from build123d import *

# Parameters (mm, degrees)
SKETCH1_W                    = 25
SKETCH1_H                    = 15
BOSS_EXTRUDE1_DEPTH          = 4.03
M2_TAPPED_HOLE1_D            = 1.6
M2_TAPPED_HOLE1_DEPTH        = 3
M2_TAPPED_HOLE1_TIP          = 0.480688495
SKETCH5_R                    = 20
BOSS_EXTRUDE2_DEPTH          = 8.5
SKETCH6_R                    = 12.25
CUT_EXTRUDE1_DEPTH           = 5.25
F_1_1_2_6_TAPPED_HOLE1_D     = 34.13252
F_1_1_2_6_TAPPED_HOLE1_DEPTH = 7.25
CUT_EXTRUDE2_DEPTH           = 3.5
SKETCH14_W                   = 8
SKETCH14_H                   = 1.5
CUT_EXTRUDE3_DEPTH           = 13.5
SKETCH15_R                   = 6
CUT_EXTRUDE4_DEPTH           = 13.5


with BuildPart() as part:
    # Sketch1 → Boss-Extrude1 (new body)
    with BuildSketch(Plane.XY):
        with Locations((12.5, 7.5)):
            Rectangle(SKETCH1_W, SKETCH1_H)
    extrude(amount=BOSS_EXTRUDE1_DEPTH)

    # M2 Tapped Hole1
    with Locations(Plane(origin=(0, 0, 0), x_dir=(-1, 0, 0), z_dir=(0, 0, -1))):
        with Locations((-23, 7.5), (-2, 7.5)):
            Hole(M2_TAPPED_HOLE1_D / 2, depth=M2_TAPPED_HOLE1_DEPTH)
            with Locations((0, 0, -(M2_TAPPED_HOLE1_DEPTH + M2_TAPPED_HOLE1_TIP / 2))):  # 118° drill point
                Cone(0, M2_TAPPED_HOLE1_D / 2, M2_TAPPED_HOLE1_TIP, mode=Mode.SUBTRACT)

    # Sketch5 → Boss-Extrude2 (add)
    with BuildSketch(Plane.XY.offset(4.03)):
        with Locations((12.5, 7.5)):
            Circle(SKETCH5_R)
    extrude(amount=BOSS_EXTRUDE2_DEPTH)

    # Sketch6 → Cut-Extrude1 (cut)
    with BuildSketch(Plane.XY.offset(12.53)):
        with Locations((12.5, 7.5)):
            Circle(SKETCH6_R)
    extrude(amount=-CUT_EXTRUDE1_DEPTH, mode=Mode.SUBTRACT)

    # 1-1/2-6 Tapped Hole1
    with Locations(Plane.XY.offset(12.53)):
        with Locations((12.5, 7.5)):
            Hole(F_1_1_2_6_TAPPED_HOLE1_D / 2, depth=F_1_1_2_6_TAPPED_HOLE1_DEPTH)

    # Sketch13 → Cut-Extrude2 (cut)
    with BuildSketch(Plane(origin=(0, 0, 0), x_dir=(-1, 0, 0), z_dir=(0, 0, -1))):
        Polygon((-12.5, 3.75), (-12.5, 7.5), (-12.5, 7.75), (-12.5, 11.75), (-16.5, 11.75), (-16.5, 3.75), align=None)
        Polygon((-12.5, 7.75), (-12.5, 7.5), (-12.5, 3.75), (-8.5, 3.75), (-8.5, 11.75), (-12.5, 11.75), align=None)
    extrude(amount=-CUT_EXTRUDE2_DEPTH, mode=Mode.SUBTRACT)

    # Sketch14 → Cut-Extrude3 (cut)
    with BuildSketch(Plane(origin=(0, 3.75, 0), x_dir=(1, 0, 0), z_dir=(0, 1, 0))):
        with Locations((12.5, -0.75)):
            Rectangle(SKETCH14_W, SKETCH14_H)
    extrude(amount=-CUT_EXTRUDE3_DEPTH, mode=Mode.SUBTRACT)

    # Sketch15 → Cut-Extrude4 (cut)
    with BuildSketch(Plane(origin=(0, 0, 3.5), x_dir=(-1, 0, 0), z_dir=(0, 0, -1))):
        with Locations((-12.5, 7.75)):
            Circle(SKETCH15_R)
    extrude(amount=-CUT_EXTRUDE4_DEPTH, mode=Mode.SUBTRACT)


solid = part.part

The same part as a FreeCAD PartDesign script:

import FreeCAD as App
import Part
import Sketcher
Q = App.Units.Quantity


def add_polygon(sketch, points):
    """Adds a closed chain of lines whose ends are joined by coincident constraints."""
    first, n = sketch.GeometryCount, len(points)
    for a, b in zip(points, points[1:] + points[:1]):
        sketch.addGeometry(Part.LineSegment(App.Vector(*a, 0), App.Vector(*b, 0)), False)
    for i in range(n):
        sketch.addConstraint(Sketcher.Constraint("Coincident", first + i, 2, first + (i + 1) % n, 1))

doc = App.newDocument("Part")
params = doc.addObject("Spreadsheet::Sheet", "Params")
for row, (alias, value) in enumerate([
    ("sketch1_width", "25 mm"),
    ("sketch1_height", "15 mm"),
    ("pad1_length", "4.03 mm"),
    ("sketch2_diameter", "1.6 mm"),
    ("hole_diameter", "1.6 mm"),
    ("hole_depth", "3 mm"),
    ("sketch3_diameter", "40 mm"),
    ("pad2_length", "8.5 mm"),
    ("sketch4_diameter", "24.5 mm"),
    ("pocket1_length", "5.25 mm"),
    ("hole2_diameter", "34.13252 mm"),
    ("hole2_depth", "7.25 mm"),
    ("sketch6_width", "8 mm"),
    ("pocket2_length", "3.5 mm"),
    ("sketch7_width", "8 mm"),
    ("sketch7_height", "1.5 mm"),
    ("pocket3_length", "13.5 mm"),
    ("sketch8_diameter", "12 mm"),
    ("pocket4_length", "13.5 mm"),
], start=1):
    params.set(f"A{row}", alias)
    params.set(f"B{row}", "=" + value)
    params.setAlias(f"B{row}", alias)

body = doc.addObject("PartDesign::Body", "Body")

# Sketch on XY plane
sketch1 = doc.addObject("Sketcher::SketchObject", "Sketch")
body.addObject(sketch1)
sketch1.AttachmentSupport = (doc.XY_Plane, [""])
sketch1.MapMode = "FlatFace"
add_polygon(sketch1, [(0, 15), (0, 0), (25, 0), (25, 15)])  # lines 0-3
sketch1.addConstraint(Sketcher.Constraint("Vertical", 0))
sketch1.addConstraint(Sketcher.Constraint("Horizontal", 1))
sketch1.addConstraint(Sketcher.Constraint("Vertical", 2))
sketch1.addConstraint(Sketcher.Constraint("Horizontal", 3))
sketch1.addConstraint(Sketcher.Constraint("Coincident", 0, 2, -1, 1))
sketch1.addConstraint(Sketcher.Constraint("DistanceX", 1, 1, 1, 2, Q("25 mm")))
sketch1.addConstraint(Sketcher.Constraint("DistanceY", 0, 2, 0, 1, Q("15 mm")))
sketch1.setExpression("Constraints[9]", "Params.sketch1_width")
sketch1.setExpression("Constraints[10]", "Params.sketch1_height")
pad1 = doc.addObject("PartDesign::Pad", "Pad")
body.addObject(pad1)
pad1.Profile = sketch1
pad1.setExpression("Length", "Params.pad1_length")

# Sketch on XY plane
sketch2 = doc.addObject("Sketcher::SketchObject", "Sketch001")
body.addObject(sketch2)
sketch2.AttachmentSupport = (doc.XY_Plane, [""])
sketch2.MapMode = "FlatFace"
sketch2.addGeometry(Part.Circle(App.Vector(23, 7.5, 0), App.Vector(0, 0, 1), 0.8), False)
sketch2.addGeometry(Part.Circle(App.Vector(2, 7.5, 0), App.Vector(0, 0, 1), 0.8), False)
sketch2.addConstraint(Sketcher.Constraint("Equal", 0, 1))
sketch2.addConstraint(Sketcher.Constraint("Horizontal", 0, 3, 1, 3))
sketch2.addConstraint(Sketcher.Constraint("Diameter", 0, Q("1.6 mm")))
sketch2.addConstraint(Sketcher.Constraint("DistanceX", -1, 1, 0, 3, Q("23 mm")))
sketch2.addConstraint(Sketcher.Constraint("DistanceX", -1, 1, 1, 3, Q("2 mm")))
sketch2.addConstraint(Sketcher.Constraint("DistanceY", -1, 1, 0, 3, Q("7.5 mm")))
sketch2.setExpression("Constraints[2]", "Params.sketch2_diameter")
doc.recompute()
hole = doc.addObject("PartDesign::Hole", "Hole")
body.addObject(hole)
hole.Profile = sketch2
hole.ThreadType = "None"
hole.setExpression("Diameter", "Params.hole_diameter")
hole.DepthType = "Dimension"
hole.setExpression("Depth", "Params.hole_depth")
hole.DrillPoint = "Angled"
hole.DrillPointAngle = 118
hole.Reversed = True

# Sketch on XY plane
sketch3 = doc.addObject("Sketcher::SketchObject", "Sketch002")
body.addObject(sketch3)
sketch3.AttachmentSupport = (doc.XY_Plane, [""])
sketch3.MapMode = "FlatFace"
sketch3.AttachmentOffset = App.Placement(App.Vector(0, 0, 4.03), App.Rotation())
sketch3.addGeometry(Part.Circle(App.Vector(12, 8, 0), App.Vector(0, 0, 1), 20), False)
sketch3.addConstraint(Sketcher.Constraint("Diameter", 0, Q("40 mm")))
sketch3.addConstraint(Sketcher.Constraint("DistanceX", -1, 1, 0, 3, Q("12.5 mm")))
sketch3.addConstraint(Sketcher.Constraint("DistanceY", -1, 1, 0, 3, Q("7.5 mm")))
sketch3.setExpression("Constraints[0]", "Params.sketch3_diameter")
pad2 = doc.addObject("PartDesign::Pad", "Pad001")
body.addObject(pad2)
pad2.Profile = sketch3
pad2.setExpression("Length", "Params.pad2_length")

# Sketch on XY plane
sketch4 = doc.addObject("Sketcher::SketchObject", "Sketch003")
body.addObject(sketch4)
sketch4.AttachmentSupport = (doc.XY_Plane, [""])
sketch4.MapMode = "FlatFace"
sketch4.AttachmentOffset = App.Placement(App.Vector(0, 0, 12.53), App.Rotation())
sketch4.addGeometry(Part.Circle(App.Vector(12, 8, 0), App.Vector(0, 0, 1), 12), False)
sketch4.addConstraint(Sketcher.Constraint("Diameter", 0, Q("24.5 mm")))
sketch4.addConstraint(Sketcher.Constraint("DistanceX", -1, 1, 0, 3, Q("12.5 mm")))
sketch4.addConstraint(Sketcher.Constraint("DistanceY", -1, 1, 0, 3, Q("7.5 mm")))
sketch4.setExpression("Constraints[0]", "Params.sketch4_diameter")
pocket1 = doc.addObject("PartDesign::Pocket", "Pocket")
body.addObject(pocket1)
pocket1.Profile = sketch4
pocket1.setExpression("Length", "Params.pocket1_length")

# Sketch on XY plane
sketch5 = doc.addObject("Sketcher::SketchObject", "Sketch004")
body.addObject(sketch5)
sketch5.AttachmentSupport = (doc.XY_Plane, [""])
sketch5.MapMode = "FlatFace"
sketch5.AttachmentOffset = App.Placement(App.Vector(0, 0, 12.53), App.Rotation())
sketch5.addGeometry(Part.Circle(App.Vector(12, 8, 0), App.Vector(0, 0, 1), 17), False)
sketch5.addConstraint(Sketcher.Constraint("DistanceX", -1, 1, 0, 3, Q("12.5 mm")))
sketch5.addConstraint(Sketcher.Constraint("DistanceY", -1, 1, 0, 3, Q("7.5 mm")))
sketch5.addConstraint(Sketcher.Constraint("Diameter", 0, Q("34.13252 mm")))
doc.recompute()
hole2 = doc.addObject("PartDesign::Hole", "Hole001")
body.addObject(hole2)
hole2.Profile = sketch5
hole2.ThreadType = "None"
hole2.setExpression("Diameter", "Params.hole2_diameter")
hole2.DepthType = "Dimension"
hole2.setExpression("Depth", "Params.hole2_depth")
hole2.DrillPoint = "Flat"

# Sketch on XY plane
sketch6 = doc.addObject("Sketcher::SketchObject", "Sketch005")
body.addObject(sketch6)
sketch6.AttachmentSupport = (doc.XY_Plane, [""])
sketch6.MapMode = "FlatFace"
add_polygon(sketch6, [(16, 12), (16, 4), (8, 4), (8, 12)])  # lines 0-3
sketch6.addConstraint(Sketcher.Constraint("Vertical", 0))
sketch6.addConstraint(Sketcher.Constraint("Horizontal", 1))
sketch6.addConstraint(Sketcher.Constraint("Vertical", 2))
sketch6.addConstraint(Sketcher.Constraint("Horizontal", 3))
sketch6.addConstraint(Sketcher.Constraint("Equal", 3, 0))
sketch6.addConstraint(Sketcher.Constraint("DistanceX", 1, 2, 1, 1, Q("8 mm")))
sketch6.addConstraint(Sketcher.Constraint("DistanceX", -1, 1, 0, 2, Q("16.5 mm")))
sketch6.addConstraint(Sketcher.Constraint("DistanceY", -1, 1, 0, 2, Q("3.75 mm")))
sketch6.setExpression("Constraints[9]", "Params.sketch6_width")
pocket2 = doc.addObject("PartDesign::Pocket", "Pocket001")
body.addObject(pocket2)
pocket2.Profile = sketch6
pocket2.setExpression("Length", "Params.pocket2_length")
pocket2.Reversed = True

# Sketch on XZ plane
sketch7 = doc.addObject("Sketcher::SketchObject", "Sketch006")
body.addObject(sketch7)
sketch7.AttachmentSupport = (doc.XZ_Plane, [""])
sketch7.MapMode = "FlatFace"
sketch7.AttachmentOffset = App.Placement(App.Vector(0, 0, -3.75), App.Rotation())
add_polygon(sketch7, [(8.5, 0), (8.5, 1.5), (16.5, 1.5), (16.5, 0)])  # lines 0-3
sketch7.addConstraint(Sketcher.Constraint("Vertical", 0))
sketch7.addConstraint(Sketcher.Constraint("Horizontal", 1))
sketch7.addConstraint(Sketcher.Constraint("Vertical", 2))
sketch7.addConstraint(Sketcher.Constraint("Horizontal", 3))
sketch7.addConstraint(Sketcher.Constraint("PointOnObject", 2, 2, -1))
sketch7.addConstraint(Sketcher.Constraint("DistanceX", 1, 1, 1, 2, Q("8 mm")))
sketch7.addConstraint(Sketcher.Constraint("DistanceY", 0, 1, 0, 2, Q("1.5 mm")))
sketch7.addConstraint(Sketcher.Constraint("DistanceX", -1, 1, 0, 2, Q("8.5 mm")))
sketch7.setExpression("Constraints[9]", "Params.sketch7_width")
sketch7.setExpression("Constraints[10]", "Params.sketch7_height")
pocket3 = doc.addObject("PartDesign::Pocket", "Pocket002")
body.addObject(pocket3)
pocket3.Profile = sketch7
pocket3.setExpression("Length", "Params.pocket3_length")
pocket3.Reversed = True

# Sketch on XY plane
sketch8 = doc.addObject("Sketcher::SketchObject", "Sketch007")
body.addObject(sketch8)
sketch8.AttachmentSupport = (doc.XY_Plane, [""])
sketch8.MapMode = "FlatFace"
sketch8.AttachmentOffset = App.Placement(App.Vector(0, 0, 3.5), App.Rotation())
sketch8.addGeometry(Part.Circle(App.Vector(12, 8, 0), App.Vector(0, 0, 1), 6), False)
sketch8.addConstraint(Sketcher.Constraint("Diameter", 0, Q("12 mm")))
sketch8.addConstraint(Sketcher.Constraint("DistanceX", -1, 1, 0, 3, Q("12.5 mm")))
sketch8.addConstraint(Sketcher.Constraint("DistanceY", -1, 1, 0, 3, Q("7.75 mm")))
sketch8.setExpression("Constraints[0]", "Params.sketch8_diameter")
pocket4 = doc.addObject("PartDesign::Pocket", "Pocket003")
body.addObject(pocket4)
pocket4.Profile = sketch8
pocket4.setExpression("Length", "Params.pocket4_length")
pocket4.Reversed = True

doc.recompute()
